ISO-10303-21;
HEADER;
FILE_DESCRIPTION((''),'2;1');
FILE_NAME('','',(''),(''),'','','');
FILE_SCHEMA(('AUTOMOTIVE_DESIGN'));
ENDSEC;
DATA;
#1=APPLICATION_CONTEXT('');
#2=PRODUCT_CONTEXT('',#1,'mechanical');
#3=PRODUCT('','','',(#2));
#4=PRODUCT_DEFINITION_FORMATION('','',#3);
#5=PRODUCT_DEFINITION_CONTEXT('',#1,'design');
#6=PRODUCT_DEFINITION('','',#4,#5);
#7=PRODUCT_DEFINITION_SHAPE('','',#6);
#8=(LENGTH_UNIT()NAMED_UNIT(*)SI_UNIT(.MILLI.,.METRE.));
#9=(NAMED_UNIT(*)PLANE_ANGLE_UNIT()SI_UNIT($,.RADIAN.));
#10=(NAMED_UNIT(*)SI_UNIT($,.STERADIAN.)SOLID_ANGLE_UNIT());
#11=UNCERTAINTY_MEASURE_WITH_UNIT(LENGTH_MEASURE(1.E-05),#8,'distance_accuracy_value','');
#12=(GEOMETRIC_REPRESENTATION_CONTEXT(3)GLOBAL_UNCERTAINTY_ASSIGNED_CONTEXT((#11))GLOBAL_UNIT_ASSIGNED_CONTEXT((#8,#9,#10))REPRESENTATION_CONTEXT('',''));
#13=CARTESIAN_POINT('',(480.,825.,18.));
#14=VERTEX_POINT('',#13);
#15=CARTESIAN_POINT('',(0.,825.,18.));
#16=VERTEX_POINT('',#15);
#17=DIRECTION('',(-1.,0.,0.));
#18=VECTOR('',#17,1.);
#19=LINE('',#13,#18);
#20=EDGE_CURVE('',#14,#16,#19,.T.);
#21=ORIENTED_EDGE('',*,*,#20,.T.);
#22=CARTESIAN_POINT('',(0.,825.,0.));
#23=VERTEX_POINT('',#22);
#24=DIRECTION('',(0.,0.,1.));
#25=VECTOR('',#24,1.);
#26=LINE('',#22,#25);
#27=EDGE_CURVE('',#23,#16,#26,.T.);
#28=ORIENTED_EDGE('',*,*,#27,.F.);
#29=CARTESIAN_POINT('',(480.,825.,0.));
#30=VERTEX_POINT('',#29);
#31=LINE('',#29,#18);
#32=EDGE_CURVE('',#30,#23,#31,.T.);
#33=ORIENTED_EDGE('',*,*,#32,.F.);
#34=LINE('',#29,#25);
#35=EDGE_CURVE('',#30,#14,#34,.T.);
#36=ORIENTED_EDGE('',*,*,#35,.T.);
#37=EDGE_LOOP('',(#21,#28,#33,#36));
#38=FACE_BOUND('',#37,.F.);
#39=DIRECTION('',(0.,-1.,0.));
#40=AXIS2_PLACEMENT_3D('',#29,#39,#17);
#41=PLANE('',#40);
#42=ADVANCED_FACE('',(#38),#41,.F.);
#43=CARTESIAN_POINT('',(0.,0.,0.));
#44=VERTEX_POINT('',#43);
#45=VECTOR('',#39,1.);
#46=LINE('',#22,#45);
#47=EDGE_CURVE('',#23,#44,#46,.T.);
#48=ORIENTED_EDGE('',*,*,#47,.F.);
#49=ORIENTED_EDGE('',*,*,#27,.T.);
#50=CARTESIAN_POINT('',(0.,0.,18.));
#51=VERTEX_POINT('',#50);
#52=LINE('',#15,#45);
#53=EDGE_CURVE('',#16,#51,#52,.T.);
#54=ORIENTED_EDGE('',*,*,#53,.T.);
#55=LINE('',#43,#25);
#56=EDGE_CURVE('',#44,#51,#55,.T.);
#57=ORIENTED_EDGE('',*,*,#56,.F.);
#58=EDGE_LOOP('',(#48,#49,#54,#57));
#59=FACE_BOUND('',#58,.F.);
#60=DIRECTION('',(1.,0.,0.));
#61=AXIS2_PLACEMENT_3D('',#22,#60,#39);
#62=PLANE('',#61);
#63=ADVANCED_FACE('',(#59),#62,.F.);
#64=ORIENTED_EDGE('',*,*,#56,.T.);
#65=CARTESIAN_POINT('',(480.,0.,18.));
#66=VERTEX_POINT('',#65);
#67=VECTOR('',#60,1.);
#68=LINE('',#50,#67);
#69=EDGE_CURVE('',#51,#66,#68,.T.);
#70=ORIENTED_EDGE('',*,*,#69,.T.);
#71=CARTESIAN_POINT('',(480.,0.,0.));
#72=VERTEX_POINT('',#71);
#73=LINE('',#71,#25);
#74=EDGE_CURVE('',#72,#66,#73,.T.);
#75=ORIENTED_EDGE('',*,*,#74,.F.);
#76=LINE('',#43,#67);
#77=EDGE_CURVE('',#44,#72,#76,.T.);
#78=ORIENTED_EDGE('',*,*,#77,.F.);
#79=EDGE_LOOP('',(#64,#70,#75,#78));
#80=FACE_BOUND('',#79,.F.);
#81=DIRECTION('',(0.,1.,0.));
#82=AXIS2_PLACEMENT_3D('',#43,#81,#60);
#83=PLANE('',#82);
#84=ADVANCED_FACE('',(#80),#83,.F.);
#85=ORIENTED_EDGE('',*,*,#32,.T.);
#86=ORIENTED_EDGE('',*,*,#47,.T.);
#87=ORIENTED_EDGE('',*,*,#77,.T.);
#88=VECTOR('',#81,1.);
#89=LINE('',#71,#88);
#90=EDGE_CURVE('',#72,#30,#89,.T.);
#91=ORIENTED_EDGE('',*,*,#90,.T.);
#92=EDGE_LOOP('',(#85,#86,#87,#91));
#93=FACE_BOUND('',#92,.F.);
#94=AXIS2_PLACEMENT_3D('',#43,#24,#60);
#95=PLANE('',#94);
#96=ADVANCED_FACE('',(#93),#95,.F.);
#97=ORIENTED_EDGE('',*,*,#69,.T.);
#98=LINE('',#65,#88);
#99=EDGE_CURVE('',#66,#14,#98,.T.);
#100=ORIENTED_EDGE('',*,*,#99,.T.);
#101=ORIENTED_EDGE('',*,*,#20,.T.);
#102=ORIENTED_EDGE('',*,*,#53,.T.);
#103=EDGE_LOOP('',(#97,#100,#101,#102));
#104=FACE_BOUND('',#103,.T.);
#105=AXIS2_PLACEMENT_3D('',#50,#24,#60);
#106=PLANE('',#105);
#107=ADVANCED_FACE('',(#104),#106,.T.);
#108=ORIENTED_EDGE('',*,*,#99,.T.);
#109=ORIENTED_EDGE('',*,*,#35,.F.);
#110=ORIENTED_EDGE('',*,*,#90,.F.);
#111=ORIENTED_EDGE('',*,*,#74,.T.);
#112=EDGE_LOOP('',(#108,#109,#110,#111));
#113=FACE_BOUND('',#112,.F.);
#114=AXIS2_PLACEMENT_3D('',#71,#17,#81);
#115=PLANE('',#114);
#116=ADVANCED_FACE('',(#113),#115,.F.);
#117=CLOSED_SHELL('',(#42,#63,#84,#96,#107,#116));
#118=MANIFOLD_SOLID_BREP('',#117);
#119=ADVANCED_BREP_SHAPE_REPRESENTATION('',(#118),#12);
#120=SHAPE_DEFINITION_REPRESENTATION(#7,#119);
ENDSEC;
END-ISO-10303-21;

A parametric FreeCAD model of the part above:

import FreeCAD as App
import Part
import Sketcher

V = App.Vector


def add_polygon(sketch, points):
    """Adds a closed chain of lines whose ends are joined by coincident constraints."""
    first, n = sketch.GeometryCount, len(points)
    for a, b in zip(points, points[1:] + points[:1]):
        sketch.addGeometry(Part.LineSegment(App.Vector(*a, 0), App.Vector(*b, 0)), False)
    for i in range(n):
        sketch.addConstraint(Sketcher.Constraint("Coincident", first + i, 2, first + (i + 1) % n, 1))

doc = App.newDocument("Part")
body = doc.addObject("PartDesign::Body", "Body")

# Sketch on XY plane
sketch1 = doc.addObject("Sketcher::SketchObject", "Sketch")
body.addObject(sketch1)
sketch1.AttachmentSupport = (doc.XY_Plane, [""])
sketch1.MapMode = "FlatFace"
add_polygon(sketch1, [(0, 825), (0, 0), (480, 0), (480, 825)])  # lines 0-3
sketch1.addConstraint([
    Sketcher.Constraint("Vertical", 0),
    Sketcher.Constraint("Horizontal", 1),
    Sketcher.Constraint("Vertical", 2),
    Sketcher.Constraint("Horizontal", 3),
    Sketcher.Constraint("Coincident", 0, 2, -1, 1),
    Sketcher.Constraint("DistanceX", 1, 1, 1, 2, 480.0),
    Sketcher.Constraint("DistanceY", 0, 2, 0, 1, 825.0),
])
pad1 = doc.addObject("PartDesign::Pad", "Pad")
body.addObject(pad1)
pad1.Profile = sketch1
pad1.Length = 18

doc.recompute()
